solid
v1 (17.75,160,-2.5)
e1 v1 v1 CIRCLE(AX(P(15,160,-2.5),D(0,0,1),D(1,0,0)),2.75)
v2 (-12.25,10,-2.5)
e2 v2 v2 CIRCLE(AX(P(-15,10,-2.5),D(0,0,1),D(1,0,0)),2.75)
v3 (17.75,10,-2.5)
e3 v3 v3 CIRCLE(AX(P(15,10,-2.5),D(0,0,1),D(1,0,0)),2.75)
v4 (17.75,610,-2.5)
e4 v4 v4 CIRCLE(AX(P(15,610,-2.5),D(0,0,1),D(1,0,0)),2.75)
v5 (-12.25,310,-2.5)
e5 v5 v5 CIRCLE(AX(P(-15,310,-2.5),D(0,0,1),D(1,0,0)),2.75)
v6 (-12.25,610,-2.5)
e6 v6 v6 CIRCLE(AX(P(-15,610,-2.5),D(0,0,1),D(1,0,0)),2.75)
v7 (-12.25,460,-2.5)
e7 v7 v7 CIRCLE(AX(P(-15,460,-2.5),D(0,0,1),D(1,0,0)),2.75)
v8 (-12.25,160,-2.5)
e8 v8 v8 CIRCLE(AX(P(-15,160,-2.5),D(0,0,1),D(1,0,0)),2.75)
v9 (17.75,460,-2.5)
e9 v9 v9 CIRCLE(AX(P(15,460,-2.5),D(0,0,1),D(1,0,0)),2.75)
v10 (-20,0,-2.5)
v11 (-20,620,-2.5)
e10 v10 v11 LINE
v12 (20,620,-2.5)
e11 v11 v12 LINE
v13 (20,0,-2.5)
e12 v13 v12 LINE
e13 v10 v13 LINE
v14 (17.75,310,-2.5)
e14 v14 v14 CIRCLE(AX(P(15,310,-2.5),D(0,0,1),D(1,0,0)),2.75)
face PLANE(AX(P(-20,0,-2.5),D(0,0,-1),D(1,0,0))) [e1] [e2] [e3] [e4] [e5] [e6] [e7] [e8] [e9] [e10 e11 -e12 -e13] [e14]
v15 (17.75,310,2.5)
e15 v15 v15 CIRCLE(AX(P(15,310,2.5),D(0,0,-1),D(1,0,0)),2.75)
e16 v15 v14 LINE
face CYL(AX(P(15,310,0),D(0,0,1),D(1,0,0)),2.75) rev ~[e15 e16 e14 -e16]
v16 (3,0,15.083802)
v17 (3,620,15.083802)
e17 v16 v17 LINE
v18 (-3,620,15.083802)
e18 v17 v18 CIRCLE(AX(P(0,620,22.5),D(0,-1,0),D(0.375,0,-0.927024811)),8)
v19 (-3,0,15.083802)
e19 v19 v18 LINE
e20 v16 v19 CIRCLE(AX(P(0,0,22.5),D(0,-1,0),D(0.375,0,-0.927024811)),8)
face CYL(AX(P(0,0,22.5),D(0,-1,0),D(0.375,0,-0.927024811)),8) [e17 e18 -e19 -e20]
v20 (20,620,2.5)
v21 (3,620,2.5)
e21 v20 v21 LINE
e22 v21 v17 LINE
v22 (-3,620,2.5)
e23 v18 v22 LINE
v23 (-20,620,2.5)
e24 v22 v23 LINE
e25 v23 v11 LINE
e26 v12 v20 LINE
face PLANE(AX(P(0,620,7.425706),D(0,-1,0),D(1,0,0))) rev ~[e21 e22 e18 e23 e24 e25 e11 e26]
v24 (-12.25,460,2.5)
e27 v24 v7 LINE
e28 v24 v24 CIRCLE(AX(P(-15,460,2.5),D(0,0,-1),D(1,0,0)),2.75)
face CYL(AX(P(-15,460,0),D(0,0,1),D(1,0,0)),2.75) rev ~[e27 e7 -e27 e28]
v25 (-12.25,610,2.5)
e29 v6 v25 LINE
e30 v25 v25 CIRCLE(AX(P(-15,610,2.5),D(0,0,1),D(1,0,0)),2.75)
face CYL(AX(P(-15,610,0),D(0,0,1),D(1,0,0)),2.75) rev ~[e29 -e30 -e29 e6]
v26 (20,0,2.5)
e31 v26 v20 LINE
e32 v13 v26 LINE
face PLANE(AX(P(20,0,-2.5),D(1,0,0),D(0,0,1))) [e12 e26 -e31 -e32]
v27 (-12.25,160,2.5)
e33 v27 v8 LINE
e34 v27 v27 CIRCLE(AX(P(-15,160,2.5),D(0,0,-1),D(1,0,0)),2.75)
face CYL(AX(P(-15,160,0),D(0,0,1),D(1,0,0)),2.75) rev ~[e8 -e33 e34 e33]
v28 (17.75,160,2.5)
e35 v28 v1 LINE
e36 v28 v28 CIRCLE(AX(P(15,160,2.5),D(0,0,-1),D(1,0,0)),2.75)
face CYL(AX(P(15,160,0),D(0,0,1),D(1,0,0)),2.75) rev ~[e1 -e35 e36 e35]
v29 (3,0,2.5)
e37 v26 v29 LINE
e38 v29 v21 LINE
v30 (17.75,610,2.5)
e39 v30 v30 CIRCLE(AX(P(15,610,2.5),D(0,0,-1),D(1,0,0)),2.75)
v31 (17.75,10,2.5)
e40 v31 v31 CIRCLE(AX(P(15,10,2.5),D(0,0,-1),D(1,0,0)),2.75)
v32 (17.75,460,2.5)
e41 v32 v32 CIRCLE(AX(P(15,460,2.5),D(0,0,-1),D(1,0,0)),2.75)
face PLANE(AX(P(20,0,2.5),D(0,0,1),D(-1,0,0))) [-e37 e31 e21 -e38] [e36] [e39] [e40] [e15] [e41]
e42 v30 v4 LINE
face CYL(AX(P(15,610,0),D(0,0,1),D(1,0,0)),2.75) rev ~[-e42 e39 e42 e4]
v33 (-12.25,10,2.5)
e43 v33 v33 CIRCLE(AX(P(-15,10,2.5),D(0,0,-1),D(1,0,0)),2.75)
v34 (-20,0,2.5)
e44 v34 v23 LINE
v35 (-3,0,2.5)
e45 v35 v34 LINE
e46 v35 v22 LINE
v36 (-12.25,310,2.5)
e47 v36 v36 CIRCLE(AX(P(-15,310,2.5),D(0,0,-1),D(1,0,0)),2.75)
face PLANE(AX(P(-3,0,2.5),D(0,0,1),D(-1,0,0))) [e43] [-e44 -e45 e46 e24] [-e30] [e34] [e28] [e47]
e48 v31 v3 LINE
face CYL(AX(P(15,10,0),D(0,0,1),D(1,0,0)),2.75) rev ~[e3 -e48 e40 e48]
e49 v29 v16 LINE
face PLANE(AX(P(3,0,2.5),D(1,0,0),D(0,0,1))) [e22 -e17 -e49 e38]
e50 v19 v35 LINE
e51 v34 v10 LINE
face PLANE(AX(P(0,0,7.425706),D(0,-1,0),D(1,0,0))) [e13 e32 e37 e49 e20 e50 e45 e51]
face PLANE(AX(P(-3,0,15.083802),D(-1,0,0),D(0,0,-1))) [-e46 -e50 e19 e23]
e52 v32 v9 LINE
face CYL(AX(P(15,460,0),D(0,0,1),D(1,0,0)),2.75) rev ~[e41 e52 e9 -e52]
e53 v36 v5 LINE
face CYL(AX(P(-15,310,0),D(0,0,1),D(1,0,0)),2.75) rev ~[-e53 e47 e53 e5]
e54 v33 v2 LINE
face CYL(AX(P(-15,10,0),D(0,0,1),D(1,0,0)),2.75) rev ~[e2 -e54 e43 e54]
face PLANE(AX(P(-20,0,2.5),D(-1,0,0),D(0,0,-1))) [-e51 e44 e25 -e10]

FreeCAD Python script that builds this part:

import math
import FreeCAD as App
import Part
import Sketcher
from FreeCAD import Vector
Q = App.Units.Quantity

doc = App.newDocument("Part")
body = doc.addObject("PartDesign::Body", "Body")

# Sketch on XZ plane
sketch1 = body.newObject("Sketcher::SketchObject", "Sketch")
sketch1.AttachmentSupport = (doc.getObject("XZ_Plane"), [""])
sketch1.MapMode = "FlatFace"
sketch1.addGeometry(Part.LineSegment(Vector(20, -2.5, 0), Vector(20, 2.5, 0)), False)
sketch1.addGeometry(Part.LineSegment(Vector(20, 2.5, 0), Vector(3, 2.5, 0)), False)
sketch1.addGeometry(Part.LineSegment(Vector(3, 2.5, 0), Vector(3, 15.083802, 0)), False)
sketch1.addGeometry(Part.ArcOfCircle(Part.Circle(Vector(0, 22.5, 0), Vector(0, 0, 1), 8), math.radians(-67.975687), math.radians(247.975687)), False)
sketch1.addGeometry(Part.LineSegment(Vector(-3, 15.083802, 0), Vector(-3, 2.5, 0)), False)
sketch1.addGeometry(Part.LineSegment(Vector(-3, 2.5, 0), Vector(-20, 2.5, 0)), False)
sketch1.addGeometry(Part.LineSegment(Vector(-20, 2.5, 0), Vector(-20, -2.5, 0)), False)
sketch1.addGeometry(Part.LineSegment(Vector(-20, -2.5, 0), Vector(20, -2.5, 0)), False)
sketch1.addConstraint(Sketcher.Constraint("Coincident", 0, 2, 1, 1))
sketch1.addConstraint(Sketcher.Constraint("Coincident", 1, 2, 2, 1))
sketch1.addConstraint(Sketcher.Constraint("Coincident", 2, 2, 3, 1))
sketch1.addConstraint(Sketcher.Constraint("Coincident", 3, 2, 4, 1))
sketch1.addConstraint(Sketcher.Constraint("Coincident", 4, 2, 5, 1))
sketch1.addConstraint(Sketcher.Constraint("Coincident", 5, 2, 6, 1))
sketch1.addConstraint(Sketcher.Constraint("Coincident", 6, 2, 7, 1))
sketch1.addConstraint(Sketcher.Constraint("Coincident", 7, 2, 0, 1))
sketch1.addConstraint(Sketcher.Constraint("Vertical", 0))
sketch1.addConstraint(Sketcher.Constraint("Horizontal", 1))
sketch1.addConstraint(Sketcher.Constraint("Vertical", 2))
sketch1.addConstraint(Sketcher.Constraint("Vertical", 4))
sketch1.addConstraint(Sketcher.Constraint("Horizontal", 5))
sketch1.addConstraint(Sketcher.Constraint("Vertical", 6))
sketch1.addConstraint(Sketcher.Constraint("Horizontal", 7))
sketch1.addConstraint(Sketcher.Constraint("Symmetric", 0, 2, 6, 2, -1, 1))
sketch1.addConstraint(Sketcher.Constraint("Symmetric", 2, 2, 3, 2, -2))
sketch1.addConstraint(Sketcher.Constraint("Horizontal", 1, 2, 4, 2))
sketch1.addConstraint(Sketcher.Constraint("Radius", 3, Q("8 mm")))
sketch1.addConstraint(Sketcher.Constraint("DistanceX", 1, 2, 1, 1, Q("17 mm")))
sketch1.addConstraint(Sketcher.Constraint("DistanceX", 7, 1, 7, 2, Q("40 mm")))
sketch1.addConstraint(Sketcher.Constraint("DistanceY", 0, 1, 0, 2, Q("5 mm")))
sketch1.addConstraint(Sketcher.Constraint("DistanceY", 0, 2, 3, 3, Q("20 mm")))
pad1 = body.newObject("PartDesign::Pad", "Pad")
pad1.Profile = sketch1
pad1.Length = 620
pad1.Reversed = True

# Sketch on XY plane
sketch2 = body.newObject("Sketcher::SketchObject", "Sketch001")
sketch2.AttachmentSupport = (doc.getObject("XY_Plane"), [""])
sketch2.MapMode = "FlatFace"
sketch2.addGeometry(Part.Circle(Vector(15, 10, 0), Vector(0, 0, 1), 2.75), False)
sketch2.addGeometry(Part.Circle(Vector(15, 160, 0), Vector(0, 0, 1), 2.75), False)
sketch2.addGeometry(Part.Circle(Vector(15, 310, 0), Vector(0, 0, 1), 2.75), False)
sketch2.addGeometry(Part.Circle(Vector(15, 460, 0), Vector(0, 0, 1), 2.75), False)
sketch2.addGeometry(Part.Circle(Vector(15, 610, 0), Vector(0, 0, 1), 2.75), False)
sketch2.addGeometry(Part.Circle(Vector(-15, 10, 0), Vector(0, 0, 1), 2.75), False)
sketch2.addGeometry(Part.Circle(Vector(-15, 160, 0), Vector(0, 0, 1), 2.75), False)
sketch2.addGeometry(Part.Circle(Vector(-15, 310, 0), Vector(0, 0, 1), 2.75), False)
sketch2.addGeometry(Part.Circle(Vector(-15, 460, 0), Vector(0, 0, 1), 2.75), False)
sketch2.addGeometry(Part.Circle(Vector(-15, 610, 0), Vector(0, 0, 1), 2.75), False)
sketch2.addConstraint(Sketcher.Constraint("Equal", 0, 1))
sketch2.addConstraint(Sketcher.Constraint("Equal", 1, 2))
sketch2.addConstraint(Sketcher.Constraint("Equal", 2, 3))
sketch2.addConstraint(Sketcher.Constraint("Equal", 3, 4))
sketch2.addConstraint(Sketcher.Constraint("Equal", 4, 5))
sketch2.addConstraint(Sketcher.Constraint("Equal", 5, 6))
sketch2.addConstraint(Sketcher.Constraint("Equal", 6, 7))
sketch2.addConstraint(Sketcher.Constraint("Equal", 7, 8))
sketch2.addConstraint(Sketcher.Constraint("Equal", 8, 9))
sketch2.addConstraint(Sketcher.Constraint("Symmetric", 0, 3, 5, 3, -2))
sketch2.addConstraint(Sketcher.Constraint("Symmetric", 1, 3, 6, 3, -2))
sketch2.addConstraint(Sketcher.Constraint("Symmetric", 2, 3, 7, 3, -2))
sketch2.addConstraint(Sketcher.Constraint("Symmetric", 3, 3, 8, 3, -2))
sketch2.addConstraint(Sketcher.Constraint("Symmetric", 4, 3, 9, 3, -2))
sketch2.addConstraint(Sketcher.Constraint("Vertical", 0, 3, 1, 3))
sketch2.addConstraint(Sketcher.Constraint("Vertical", 1, 3, 2, 3))
sketch2.addConstraint(Sketcher.Constraint("Vertical", 2, 3, 3, 3))
sketch2.addConstraint(Sketcher.Constraint("Vertical", 3, 3, 4, 3))
sketch2.addConstraint(Sketcher.Constraint("Diameter", 0, Q("5.5 mm")))
sketch2.addConstraint(Sketcher.Constraint("DistanceX", -1, 1, 0, 3, Q("15 mm")))
sketch2.addConstraint(Sketcher.Constraint("DistanceY", -1, 1, 0, 3, Q("10 mm")))
sketch2.addConstraint(Sketcher.Constraint("DistanceY", -1, 1, 1, 3, Q("160 mm")))
sketch2.addConstraint(Sketcher.Constraint("DistanceY", -1, 1, 2, 3, Q("310 mm")))
sketch2.addConstraint(Sketcher.Constraint("DistanceY", -1, 1, 3, 3, Q("460 mm")))
sketch2.addConstraint(Sketcher.Constraint("DistanceY", -1, 1, 4, 3, Q("610 mm")))
pocket1 = body.newObject("PartDesign::Pocket", "Pocket")
pocket1.Profile = sketch2
pocket1.Length = 5.5
pocket1.Midplane = True

doc.recompute()
